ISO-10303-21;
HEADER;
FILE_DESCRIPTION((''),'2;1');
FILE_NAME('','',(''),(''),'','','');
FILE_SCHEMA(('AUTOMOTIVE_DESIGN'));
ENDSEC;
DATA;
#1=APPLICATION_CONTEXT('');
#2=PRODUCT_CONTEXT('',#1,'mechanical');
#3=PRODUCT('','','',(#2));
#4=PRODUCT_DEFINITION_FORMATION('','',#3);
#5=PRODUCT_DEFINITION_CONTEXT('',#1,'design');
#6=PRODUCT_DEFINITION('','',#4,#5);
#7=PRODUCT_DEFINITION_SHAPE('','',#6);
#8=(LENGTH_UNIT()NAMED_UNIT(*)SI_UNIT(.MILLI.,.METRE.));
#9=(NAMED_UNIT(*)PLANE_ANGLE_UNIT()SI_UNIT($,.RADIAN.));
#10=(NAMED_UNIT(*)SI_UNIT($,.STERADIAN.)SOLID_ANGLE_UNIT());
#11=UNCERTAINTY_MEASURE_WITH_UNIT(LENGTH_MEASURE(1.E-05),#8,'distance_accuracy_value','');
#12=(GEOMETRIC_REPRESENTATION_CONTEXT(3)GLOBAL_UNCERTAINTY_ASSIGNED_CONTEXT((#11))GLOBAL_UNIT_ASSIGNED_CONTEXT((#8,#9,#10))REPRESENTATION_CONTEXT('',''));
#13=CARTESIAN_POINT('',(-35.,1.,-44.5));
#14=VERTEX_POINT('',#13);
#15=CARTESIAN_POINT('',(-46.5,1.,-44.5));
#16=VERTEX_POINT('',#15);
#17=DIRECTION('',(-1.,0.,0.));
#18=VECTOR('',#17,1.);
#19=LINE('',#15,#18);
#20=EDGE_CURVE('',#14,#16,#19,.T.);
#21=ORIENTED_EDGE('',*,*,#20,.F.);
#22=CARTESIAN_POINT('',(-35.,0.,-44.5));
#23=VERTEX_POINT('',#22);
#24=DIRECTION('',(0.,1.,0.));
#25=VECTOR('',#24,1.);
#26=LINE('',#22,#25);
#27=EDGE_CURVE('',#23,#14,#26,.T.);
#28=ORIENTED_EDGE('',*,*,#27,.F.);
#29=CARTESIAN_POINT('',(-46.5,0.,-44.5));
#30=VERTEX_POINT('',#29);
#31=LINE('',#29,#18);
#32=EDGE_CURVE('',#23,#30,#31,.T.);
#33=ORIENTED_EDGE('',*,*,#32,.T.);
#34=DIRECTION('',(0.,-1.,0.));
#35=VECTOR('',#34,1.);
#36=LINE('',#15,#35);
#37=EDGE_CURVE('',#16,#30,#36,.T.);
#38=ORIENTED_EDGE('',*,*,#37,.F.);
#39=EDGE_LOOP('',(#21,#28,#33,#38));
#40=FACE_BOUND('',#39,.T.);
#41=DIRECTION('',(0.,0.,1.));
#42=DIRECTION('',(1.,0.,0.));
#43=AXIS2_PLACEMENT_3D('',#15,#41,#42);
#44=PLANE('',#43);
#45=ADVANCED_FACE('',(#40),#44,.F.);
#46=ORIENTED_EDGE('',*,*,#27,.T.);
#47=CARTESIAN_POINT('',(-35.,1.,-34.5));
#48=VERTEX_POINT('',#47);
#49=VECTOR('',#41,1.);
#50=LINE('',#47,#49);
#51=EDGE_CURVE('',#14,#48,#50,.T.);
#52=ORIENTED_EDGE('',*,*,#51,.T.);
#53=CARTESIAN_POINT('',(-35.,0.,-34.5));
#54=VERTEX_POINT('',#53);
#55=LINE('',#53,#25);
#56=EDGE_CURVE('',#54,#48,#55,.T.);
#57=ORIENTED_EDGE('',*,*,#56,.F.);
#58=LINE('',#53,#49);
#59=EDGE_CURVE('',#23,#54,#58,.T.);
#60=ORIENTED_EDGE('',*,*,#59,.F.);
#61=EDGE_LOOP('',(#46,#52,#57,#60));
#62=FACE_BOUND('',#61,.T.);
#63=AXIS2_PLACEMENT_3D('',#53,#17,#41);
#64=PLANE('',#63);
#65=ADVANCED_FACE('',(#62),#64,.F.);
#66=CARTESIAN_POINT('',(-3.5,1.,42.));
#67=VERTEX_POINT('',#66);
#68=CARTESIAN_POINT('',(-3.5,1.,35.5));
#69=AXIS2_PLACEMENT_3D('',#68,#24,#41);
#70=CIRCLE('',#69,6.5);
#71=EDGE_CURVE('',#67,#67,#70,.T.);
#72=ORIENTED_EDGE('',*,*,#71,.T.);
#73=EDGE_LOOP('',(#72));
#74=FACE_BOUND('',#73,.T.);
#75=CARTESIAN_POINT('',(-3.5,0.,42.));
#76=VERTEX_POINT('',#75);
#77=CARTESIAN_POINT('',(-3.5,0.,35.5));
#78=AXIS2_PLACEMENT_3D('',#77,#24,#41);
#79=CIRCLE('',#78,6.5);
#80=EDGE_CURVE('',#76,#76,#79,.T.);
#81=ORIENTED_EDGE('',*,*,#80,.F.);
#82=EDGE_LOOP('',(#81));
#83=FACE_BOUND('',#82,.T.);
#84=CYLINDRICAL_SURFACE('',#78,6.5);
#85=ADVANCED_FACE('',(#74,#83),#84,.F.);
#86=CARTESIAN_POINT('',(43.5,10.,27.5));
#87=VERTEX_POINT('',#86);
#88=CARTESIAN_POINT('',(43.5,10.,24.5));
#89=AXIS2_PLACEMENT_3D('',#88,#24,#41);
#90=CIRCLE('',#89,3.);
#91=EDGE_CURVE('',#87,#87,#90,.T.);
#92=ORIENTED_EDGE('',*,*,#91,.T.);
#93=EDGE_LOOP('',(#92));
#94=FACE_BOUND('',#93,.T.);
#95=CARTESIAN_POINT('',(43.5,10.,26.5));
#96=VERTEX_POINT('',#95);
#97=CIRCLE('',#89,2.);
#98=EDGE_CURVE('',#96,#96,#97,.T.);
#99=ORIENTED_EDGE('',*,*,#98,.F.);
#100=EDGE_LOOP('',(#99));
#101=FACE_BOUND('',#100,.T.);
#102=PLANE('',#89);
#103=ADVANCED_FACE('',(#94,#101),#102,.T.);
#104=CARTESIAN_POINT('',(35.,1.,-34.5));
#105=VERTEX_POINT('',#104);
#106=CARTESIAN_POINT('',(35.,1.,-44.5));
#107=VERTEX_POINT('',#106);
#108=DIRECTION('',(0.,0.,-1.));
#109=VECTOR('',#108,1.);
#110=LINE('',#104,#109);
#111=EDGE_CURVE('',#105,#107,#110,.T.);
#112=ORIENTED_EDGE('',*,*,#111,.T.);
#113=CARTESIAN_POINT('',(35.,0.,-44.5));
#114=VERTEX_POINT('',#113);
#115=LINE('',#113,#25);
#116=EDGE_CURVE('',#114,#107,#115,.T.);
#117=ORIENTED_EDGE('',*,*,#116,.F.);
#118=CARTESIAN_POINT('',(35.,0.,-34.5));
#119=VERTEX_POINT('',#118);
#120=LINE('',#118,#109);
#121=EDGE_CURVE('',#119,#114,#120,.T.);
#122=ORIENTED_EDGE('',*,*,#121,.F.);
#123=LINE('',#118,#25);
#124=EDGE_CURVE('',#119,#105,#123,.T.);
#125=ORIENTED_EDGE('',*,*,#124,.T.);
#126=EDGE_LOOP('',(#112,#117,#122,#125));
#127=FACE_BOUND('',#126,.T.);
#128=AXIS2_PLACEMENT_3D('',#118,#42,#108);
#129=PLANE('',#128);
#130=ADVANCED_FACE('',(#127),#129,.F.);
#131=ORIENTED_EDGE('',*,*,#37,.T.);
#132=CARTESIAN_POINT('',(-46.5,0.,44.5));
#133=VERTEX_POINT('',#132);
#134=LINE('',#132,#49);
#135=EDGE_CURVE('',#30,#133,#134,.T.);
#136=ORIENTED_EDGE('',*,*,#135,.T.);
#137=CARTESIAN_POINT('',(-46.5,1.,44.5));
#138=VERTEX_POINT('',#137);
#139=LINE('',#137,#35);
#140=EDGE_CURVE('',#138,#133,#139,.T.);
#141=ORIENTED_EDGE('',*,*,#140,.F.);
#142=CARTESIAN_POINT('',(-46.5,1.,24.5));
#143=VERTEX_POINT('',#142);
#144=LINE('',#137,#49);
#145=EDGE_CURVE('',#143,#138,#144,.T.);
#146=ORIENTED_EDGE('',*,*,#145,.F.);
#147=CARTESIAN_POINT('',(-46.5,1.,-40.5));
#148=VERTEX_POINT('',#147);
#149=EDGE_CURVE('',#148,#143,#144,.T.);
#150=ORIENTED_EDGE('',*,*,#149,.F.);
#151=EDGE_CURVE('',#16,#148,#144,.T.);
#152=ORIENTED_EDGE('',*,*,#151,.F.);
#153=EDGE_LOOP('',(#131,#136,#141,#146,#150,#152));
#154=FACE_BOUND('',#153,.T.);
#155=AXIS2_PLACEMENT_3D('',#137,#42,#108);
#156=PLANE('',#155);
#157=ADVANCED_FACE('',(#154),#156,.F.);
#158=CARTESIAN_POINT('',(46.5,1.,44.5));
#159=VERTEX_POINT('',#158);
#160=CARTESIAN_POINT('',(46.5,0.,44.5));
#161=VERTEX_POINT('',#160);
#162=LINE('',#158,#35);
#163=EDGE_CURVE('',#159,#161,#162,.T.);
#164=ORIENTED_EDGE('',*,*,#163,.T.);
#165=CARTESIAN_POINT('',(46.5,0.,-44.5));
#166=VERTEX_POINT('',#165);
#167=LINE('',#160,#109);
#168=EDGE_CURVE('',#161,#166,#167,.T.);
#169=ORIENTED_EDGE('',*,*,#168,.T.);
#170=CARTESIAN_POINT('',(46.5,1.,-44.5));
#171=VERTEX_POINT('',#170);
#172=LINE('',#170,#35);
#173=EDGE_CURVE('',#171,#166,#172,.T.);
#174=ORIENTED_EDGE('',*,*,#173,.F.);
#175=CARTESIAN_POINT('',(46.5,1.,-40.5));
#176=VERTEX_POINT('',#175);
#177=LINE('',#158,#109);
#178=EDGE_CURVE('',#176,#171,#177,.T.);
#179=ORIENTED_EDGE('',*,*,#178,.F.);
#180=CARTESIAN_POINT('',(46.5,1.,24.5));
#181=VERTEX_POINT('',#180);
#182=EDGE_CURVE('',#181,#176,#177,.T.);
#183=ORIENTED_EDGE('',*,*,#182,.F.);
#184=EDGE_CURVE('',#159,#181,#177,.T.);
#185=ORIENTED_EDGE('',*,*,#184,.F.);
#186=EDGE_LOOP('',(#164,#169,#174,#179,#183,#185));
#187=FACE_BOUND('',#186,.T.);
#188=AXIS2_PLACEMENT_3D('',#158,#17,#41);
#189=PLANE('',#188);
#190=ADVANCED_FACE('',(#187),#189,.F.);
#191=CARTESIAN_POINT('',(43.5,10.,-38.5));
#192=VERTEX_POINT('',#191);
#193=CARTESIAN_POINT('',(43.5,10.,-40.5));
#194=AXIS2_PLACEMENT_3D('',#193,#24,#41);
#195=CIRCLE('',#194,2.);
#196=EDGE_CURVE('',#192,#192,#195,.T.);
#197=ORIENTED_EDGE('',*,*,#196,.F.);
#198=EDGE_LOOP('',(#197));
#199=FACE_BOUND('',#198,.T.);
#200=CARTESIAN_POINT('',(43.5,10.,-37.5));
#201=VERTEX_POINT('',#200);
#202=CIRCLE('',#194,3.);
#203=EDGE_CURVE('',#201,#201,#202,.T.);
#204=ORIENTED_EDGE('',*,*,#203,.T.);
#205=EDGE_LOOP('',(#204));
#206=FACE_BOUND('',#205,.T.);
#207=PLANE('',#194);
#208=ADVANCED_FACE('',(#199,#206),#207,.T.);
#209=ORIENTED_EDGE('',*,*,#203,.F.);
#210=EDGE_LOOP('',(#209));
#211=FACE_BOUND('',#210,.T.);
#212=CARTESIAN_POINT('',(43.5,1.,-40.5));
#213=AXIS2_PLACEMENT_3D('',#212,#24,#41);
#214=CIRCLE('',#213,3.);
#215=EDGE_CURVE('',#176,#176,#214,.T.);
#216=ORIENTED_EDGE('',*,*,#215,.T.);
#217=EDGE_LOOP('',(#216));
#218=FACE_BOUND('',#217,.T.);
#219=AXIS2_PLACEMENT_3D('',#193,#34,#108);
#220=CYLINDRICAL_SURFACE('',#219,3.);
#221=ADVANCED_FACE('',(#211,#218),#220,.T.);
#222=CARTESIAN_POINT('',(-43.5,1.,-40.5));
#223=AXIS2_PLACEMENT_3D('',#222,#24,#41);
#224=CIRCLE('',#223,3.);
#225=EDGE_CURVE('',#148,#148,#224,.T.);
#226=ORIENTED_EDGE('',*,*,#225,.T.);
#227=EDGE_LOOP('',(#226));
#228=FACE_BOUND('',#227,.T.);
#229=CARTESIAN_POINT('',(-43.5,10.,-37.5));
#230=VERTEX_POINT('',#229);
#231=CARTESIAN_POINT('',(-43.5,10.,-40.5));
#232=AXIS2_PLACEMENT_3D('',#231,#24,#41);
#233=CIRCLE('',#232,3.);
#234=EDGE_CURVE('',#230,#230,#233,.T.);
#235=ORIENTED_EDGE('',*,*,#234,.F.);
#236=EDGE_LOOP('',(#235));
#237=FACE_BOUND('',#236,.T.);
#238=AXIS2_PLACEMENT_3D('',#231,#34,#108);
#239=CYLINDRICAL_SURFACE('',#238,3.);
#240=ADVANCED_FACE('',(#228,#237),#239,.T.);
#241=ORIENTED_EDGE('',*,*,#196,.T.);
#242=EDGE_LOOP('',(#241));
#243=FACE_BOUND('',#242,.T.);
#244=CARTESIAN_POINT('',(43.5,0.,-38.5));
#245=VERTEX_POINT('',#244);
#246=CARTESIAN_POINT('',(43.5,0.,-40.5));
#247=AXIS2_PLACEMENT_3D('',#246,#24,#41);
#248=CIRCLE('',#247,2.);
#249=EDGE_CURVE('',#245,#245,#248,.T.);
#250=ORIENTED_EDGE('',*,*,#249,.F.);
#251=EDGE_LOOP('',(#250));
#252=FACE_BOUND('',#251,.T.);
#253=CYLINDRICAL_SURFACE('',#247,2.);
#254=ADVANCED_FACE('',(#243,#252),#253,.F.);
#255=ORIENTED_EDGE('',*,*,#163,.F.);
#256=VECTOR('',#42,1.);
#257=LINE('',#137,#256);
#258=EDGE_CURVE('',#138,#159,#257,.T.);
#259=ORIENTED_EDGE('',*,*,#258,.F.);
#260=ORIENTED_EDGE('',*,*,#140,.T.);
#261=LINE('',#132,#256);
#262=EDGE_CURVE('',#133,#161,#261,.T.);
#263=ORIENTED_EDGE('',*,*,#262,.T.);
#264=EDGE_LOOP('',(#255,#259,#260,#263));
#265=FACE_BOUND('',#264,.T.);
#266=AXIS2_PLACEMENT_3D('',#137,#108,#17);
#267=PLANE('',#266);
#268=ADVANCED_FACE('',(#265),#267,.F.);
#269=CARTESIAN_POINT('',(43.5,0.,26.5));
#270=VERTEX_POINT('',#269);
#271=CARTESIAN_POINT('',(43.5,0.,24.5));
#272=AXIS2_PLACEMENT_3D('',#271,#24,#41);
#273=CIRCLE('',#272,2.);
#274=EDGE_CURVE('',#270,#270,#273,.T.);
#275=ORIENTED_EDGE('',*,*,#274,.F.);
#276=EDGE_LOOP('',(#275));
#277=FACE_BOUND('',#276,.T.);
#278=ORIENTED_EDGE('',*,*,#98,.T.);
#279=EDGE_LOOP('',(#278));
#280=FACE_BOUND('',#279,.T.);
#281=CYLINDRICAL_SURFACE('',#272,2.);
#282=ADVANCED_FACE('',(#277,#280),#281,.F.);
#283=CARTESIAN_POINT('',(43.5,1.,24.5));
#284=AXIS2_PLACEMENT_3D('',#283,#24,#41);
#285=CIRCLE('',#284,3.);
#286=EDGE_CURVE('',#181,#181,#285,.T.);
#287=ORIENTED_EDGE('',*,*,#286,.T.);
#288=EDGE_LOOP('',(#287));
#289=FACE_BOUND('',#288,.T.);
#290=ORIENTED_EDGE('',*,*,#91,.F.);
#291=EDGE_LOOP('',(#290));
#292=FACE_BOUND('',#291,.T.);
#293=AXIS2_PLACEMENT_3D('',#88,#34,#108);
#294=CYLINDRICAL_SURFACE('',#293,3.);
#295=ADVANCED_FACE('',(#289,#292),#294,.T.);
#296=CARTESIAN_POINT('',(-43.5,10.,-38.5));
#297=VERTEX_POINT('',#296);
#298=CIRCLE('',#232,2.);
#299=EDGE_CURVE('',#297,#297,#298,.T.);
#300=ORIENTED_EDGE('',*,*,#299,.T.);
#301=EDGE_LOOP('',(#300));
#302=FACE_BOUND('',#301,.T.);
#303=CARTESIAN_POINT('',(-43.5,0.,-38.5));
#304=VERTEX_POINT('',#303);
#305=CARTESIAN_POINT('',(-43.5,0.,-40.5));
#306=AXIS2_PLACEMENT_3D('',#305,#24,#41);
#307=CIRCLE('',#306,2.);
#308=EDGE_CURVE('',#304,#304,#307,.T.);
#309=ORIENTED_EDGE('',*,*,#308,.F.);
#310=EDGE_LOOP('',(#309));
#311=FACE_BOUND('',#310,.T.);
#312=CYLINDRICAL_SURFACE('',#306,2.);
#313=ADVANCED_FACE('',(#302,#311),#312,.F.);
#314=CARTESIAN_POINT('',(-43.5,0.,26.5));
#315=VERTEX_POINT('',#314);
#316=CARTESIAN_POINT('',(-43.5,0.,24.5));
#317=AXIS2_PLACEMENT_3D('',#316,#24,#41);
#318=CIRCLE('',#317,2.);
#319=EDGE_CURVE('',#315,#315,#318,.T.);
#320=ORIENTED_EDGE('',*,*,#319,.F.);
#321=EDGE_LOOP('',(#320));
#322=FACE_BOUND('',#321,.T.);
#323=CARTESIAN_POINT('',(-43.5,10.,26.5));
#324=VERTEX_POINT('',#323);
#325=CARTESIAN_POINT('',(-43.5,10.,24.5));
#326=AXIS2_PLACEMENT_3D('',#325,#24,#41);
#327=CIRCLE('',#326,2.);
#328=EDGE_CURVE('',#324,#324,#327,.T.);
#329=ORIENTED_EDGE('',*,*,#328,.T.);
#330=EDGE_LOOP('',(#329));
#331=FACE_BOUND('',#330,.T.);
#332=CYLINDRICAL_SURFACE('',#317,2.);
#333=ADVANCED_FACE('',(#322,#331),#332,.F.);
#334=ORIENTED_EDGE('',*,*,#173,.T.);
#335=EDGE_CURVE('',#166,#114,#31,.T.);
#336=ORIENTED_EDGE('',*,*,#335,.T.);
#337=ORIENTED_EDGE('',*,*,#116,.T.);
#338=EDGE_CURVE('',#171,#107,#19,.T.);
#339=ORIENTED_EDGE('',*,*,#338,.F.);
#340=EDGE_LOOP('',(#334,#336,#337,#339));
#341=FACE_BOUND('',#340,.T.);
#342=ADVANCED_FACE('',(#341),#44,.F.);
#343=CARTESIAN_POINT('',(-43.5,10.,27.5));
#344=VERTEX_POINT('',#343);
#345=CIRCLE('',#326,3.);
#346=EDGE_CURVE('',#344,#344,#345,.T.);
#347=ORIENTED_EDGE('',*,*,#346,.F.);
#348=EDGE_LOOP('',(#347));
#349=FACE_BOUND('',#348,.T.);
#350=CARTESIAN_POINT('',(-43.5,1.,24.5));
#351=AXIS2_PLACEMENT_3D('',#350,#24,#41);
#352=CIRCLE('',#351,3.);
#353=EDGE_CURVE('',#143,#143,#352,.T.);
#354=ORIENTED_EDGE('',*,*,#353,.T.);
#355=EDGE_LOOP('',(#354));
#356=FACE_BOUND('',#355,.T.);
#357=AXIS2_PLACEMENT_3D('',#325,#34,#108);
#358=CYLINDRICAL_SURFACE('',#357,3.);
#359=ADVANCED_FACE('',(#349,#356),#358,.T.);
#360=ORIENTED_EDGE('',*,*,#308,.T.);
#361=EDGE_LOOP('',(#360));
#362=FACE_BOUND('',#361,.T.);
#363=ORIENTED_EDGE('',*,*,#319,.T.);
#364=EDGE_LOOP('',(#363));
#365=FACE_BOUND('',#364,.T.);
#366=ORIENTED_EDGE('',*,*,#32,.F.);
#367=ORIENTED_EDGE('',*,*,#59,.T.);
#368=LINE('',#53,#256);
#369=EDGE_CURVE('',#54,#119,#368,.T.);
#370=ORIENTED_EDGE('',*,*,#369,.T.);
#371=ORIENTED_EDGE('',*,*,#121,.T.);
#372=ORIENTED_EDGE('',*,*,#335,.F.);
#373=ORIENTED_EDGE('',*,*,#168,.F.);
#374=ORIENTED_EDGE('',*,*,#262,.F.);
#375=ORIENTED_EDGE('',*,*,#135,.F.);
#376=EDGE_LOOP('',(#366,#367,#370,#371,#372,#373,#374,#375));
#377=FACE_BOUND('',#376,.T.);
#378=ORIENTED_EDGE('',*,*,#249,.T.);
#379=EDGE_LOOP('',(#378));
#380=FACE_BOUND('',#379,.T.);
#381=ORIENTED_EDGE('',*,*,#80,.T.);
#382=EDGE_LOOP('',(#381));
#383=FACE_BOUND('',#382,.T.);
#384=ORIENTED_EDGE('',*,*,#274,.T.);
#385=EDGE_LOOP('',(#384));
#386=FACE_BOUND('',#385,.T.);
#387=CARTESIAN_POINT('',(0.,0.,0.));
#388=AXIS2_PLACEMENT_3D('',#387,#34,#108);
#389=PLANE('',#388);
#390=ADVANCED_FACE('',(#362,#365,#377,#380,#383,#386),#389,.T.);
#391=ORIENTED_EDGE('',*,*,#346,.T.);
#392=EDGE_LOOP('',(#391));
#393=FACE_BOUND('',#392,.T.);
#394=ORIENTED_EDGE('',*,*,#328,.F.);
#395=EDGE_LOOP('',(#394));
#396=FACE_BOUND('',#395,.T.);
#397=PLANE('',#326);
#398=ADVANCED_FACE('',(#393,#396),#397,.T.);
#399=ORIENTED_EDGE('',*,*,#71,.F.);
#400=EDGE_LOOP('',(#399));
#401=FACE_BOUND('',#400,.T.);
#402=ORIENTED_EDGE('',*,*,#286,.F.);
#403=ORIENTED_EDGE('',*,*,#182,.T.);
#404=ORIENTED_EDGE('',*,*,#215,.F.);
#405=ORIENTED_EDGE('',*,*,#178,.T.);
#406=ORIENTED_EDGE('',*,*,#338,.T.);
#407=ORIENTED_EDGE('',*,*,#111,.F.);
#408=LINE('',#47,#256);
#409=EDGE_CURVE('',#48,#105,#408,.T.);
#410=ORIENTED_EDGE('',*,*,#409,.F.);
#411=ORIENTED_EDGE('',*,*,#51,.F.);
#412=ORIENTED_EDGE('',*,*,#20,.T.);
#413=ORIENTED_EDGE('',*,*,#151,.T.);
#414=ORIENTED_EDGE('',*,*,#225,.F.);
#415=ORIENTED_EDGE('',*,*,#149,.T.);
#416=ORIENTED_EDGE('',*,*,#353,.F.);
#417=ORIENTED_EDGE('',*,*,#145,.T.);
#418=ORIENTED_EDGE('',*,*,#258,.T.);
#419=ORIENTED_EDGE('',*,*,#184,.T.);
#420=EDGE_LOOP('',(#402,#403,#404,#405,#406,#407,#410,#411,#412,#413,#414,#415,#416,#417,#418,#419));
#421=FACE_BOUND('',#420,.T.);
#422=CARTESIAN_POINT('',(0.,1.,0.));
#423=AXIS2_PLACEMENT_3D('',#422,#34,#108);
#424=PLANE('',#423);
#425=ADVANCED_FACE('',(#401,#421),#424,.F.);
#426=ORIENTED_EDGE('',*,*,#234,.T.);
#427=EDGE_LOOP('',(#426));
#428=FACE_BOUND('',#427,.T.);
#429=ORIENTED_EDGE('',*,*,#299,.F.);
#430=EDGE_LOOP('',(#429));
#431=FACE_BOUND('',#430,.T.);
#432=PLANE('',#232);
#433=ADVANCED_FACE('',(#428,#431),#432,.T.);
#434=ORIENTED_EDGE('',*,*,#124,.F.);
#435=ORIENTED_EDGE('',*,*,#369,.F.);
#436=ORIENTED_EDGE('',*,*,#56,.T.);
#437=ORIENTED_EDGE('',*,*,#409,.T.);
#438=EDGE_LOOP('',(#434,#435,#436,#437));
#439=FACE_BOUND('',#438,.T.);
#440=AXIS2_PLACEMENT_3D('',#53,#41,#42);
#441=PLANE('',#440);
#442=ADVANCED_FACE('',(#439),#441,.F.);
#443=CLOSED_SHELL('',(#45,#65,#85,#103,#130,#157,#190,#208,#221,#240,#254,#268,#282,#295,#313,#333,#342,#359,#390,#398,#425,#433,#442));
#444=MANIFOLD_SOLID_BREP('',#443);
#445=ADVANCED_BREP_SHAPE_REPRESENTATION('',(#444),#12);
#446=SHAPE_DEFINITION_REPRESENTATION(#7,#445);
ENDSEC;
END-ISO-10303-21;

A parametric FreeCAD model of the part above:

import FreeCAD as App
import Part
import Sketcher

doc = App.newDocument("Part")
body = doc.addObject("PartDesign::Body", "Body")

# Sketch on XZ plane
sketch1 = body.newObject("Sketcher::SketchObject", "Sketch")
sketch1.AttachmentSupport = (doc.getObject("XZ_Plane"), [""])
sketch1.MapMode = "FlatFace"
sketch1.addGeometry(Part.LineSegment(App.Vector(-46, -44, 0), App.Vector(-46, 44, 0)), False)
sketch1.addGeometry(Part.LineSegment(App.Vector(-46, 44, 0), App.Vector(46, 44, 0)), False)
sketch1.addGeometry(Part.LineSegment(App.Vector(46, 44, 0), App.Vector(46, -44, 0)), False)
sketch1.addGeometry(Part.LineSegment(App.Vector(46, -44, 0), App.Vector(-46, -44, 0)), False)
sketch1.addConstraint(Sketcher.Constraint("Coincident", 0, 2, 1, 1))
sketch1.addConstraint(Sketcher.Constraint("Coincident", 1, 2, 2, 1))
sketch1.addConstraint(Sketcher.Constraint("Coincident", 2, 2, 3, 1))
sketch1.addConstraint(Sketcher.Constraint("Coincident", 3, 2, 0, 1))
sketch1.addConstraint(Sketcher.Constraint("Vertical", 0))
sketch1.addConstraint(Sketcher.Constraint("Horizontal", 1))
sketch1.addConstraint(Sketcher.Constraint("Vertical", 2))
sketch1.addConstraint(Sketcher.Constraint("Horizontal", 3))
sketch1.addConstraint(Sketcher.Constraint("Symmetric", 0, 2, 2, 2, -1, 1))
sketch1.addConstraint(Sketcher.Constraint("DistanceX", 1, 1, 1, 2, 93.0))
sketch1.addConstraint(Sketcher.Constraint("DistanceY", 0, 1, 0, 2, 89.0))
pad1 = body.newObject("PartDesign::Pad", "Pad")
pad1.Profile = sketch1
pad1.Length = 1
pad1.Reversed = True

# Sketch on XZ plane
sketch2 = body.newObject("Sketcher::SketchObject", "Sketch001")
sketch2.AttachmentSupport = (doc.getObject("XZ_Plane"), [""])
sketch2.MapMode = "FlatFace"
sketch2.AttachmentOffset = App.Placement(App.Vector(0, 0, -1), App.Rotation())
sketch2.addGeometry(Part.Circle(App.Vector(-43.5, -40.5, 0), App.Vector(0, 0, 1), 3), False)
sketch2.addGeometry(Part.Circle(App.Vector(43.5, -40.5, 0), App.Vector(0, 0, 1), 3), False)
sketch2.addGeometry(Part.Circle(App.Vector(-43.5, 24.5, 0), App.Vector(0, 0, 1), 3), False)
sketch2.addGeometry(Part.Circle(App.Vector(43.5, 24.5, 0), App.Vector(0, 0, 1), 3), False)
sketch2.addConstraint(Sketcher.Constraint("Equal", 0, 1))
sketch2.addConstraint(Sketcher.Constraint("Equal", 1, 2))
sketch2.addConstraint(Sketcher.Constraint("Equal", 2, 3))
sketch2.addConstraint(Sketcher.Constraint("Symmetric", 0, 3, 1, 3, -2))
sketch2.addConstraint(Sketcher.Constraint("Symmetric", 2, 3, 3, 3, -2))
sketch2.addConstraint(Sketcher.Constraint("Vertical", 0, 3, 2, 3))
sketch2.addConstraint(Sketcher.Constraint("Diameter", 0, 6.0))
sketch2.addConstraint(Sketcher.Constraint("DistanceX", 0, 3, 1, 3, 87.0))
sketch2.addConstraint(Sketcher.Constraint("DistanceY", 0, 3, 2, 3, 65.0))
sketch2.addConstraint(Sketcher.Constraint("DistanceY", 0, 3, -1, 1, 40.5))
pad2 = body.newObject("PartDesign::Pad", "Pad001")
pad2.Profile = sketch2
pad2.Length = 9
pad2.Reversed = True

# Sketch on XZ plane
sketch3 = body.newObject("Sketcher::SketchObject", "Sketch002")
sketch3.AttachmentSupport = (doc.getObject("XZ_Plane"), [""])
sketch3.MapMode = "FlatFace"
sketch3.AttachmentOffset = App.Placement(App.Vector(0, 0, -1), App.Rotation())
sketch3.addGeometry(Part.Circle(App.Vector(-4, 36, 0), App.Vector(0, 0, 1), 6), False)
sketch3.addGeometry(Part.LineSegment(App.Vector(-35, -44, 0), App.Vector(-35, -34, 0)), False)
sketch3.addGeometry(Part.LineSegment(App.Vector(-35, -34, 0), App.Vector(35, -34, 0)), False)
sketch3.addGeometry(Part.LineSegment(App.Vector(35, -34, 0), App.Vector(35, -44, 0)), False)
sketch3.addGeometry(Part.LineSegment(App.Vector(35, -44, 0), App.Vector(-35, -44, 0)), False)
sketch3.addConstraint(Sketcher.Constraint("Coincident", 1, 2, 2, 1))
sketch3.addConstraint(Sketcher.Constraint("Coincident", 2, 2, 3, 1))
sketch3.addConstraint(Sketcher.Constraint("Coincident", 3, 2, 4, 1))
sketch3.addConstraint(Sketcher.Constraint("Coincident", 4, 2, 1, 1))
sketch3.addConstraint(Sketcher.Constraint("Vertical", 1))
sketch3.addConstraint(Sketcher.Constraint("Horizontal", 2))
sketch3.addConstraint(Sketcher.Constraint("Vertical", 3))
sketch3.addConstraint(Sketcher.Constraint("Horizontal", 4))
sketch3.addConstraint(Sketcher.Constraint("Diameter", 0, 13.0))
sketch3.addConstraint(Sketcher.Constraint("DistanceX", 2, 1, 2, 2, 70.0))
sketch3.addConstraint(Sketcher.Constraint("DistanceY", 1, 1, 1, 2, 10.0))
sketch3.addConstraint(Sketcher.Constraint("DistanceX", 1, 2, -1, 1, 35.0))
sketch3.addConstraint(Sketcher.Constraint("DistanceY", 1, 2, 0, 3, 70.0))
sketch3.addConstraint(Sketcher.Constraint("DistanceX", 0, 3, -1, 1, 3.5))
sketch3.addConstraint(Sketcher.Constraint("DistanceY", -1, 1, 0, 3, 35.5))
pocket1 = body.newObject("PartDesign::Pocket", "Pocket")
pocket1.Profile = sketch3
pocket1.Length = 1
pocket1.Reversed = True

# Sketch on XZ plane
sketch4 = body.newObject("Sketcher::SketchObject", "Sketch003")
sketch4.AttachmentSupport = (doc.getObject("XZ_Plane"), [""])
sketch4.MapMode = "FlatFace"
sketch4.AttachmentOffset = App.Placement(App.Vector(0, 0, -10), App.Rotation())
sketch4.addGeometry(Part.Circle(App.Vector(-43.5, -40.5, 0), App.Vector(0, 0, 1), 2), False)
sketch4.addGeometry(Part.Circle(App.Vector(-43.5, 24.5, 0), App.Vector(0, 0, 1), 2), False)
sketch4.addGeometry(Part.Circle(App.Vector(43.5, -40.5, 0), App.Vector(0, 0, 1), 2), False)
sketch4.addGeometry(Part.Circle(App.Vector(43.5, 24.5, 0), App.Vector(0, 0, 1), 2), False)
sketch4.addConstraint(Sketcher.Constraint("Equal", 0, 1))
sketch4.addConstraint(Sketcher.Constraint("Equal", 1, 2))
sketch4.addConstraint(Sketcher.Constraint("Equal", 2, 3))
sketch4.addConstraint(Sketcher.Constraint("Symmetric", 0, 3, 2, 3, -2))
sketch4.addConstraint(Sketcher.Constraint("Symmetric", 1, 3, 3, 3, -2))
sketch4.addConstraint(Sketcher.Constraint("Vertical", 0, 3, 1, 3))
sketch4.addConstraint(Sketcher.Constraint("Diameter", 0, 4.0))
sketch4.addConstraint(Sketcher.Constraint("DistanceY", 0, 3, 1, 3, 65.0))
sketch4.addConstraint(Sketcher.Constraint("DistanceX", 0, 3, 2, 3, 87.0))
sketch4.addConstraint(Sketcher.Constraint("DistanceY", 0, 3, -1, 1, 40.5))
pocket2 = body.newObject("PartDesign::Pocket", "Pocket001")
pocket2.Profile = sketch4
pocket2.Length = 10
pocket2.Reversed = True

doc.recompute()
